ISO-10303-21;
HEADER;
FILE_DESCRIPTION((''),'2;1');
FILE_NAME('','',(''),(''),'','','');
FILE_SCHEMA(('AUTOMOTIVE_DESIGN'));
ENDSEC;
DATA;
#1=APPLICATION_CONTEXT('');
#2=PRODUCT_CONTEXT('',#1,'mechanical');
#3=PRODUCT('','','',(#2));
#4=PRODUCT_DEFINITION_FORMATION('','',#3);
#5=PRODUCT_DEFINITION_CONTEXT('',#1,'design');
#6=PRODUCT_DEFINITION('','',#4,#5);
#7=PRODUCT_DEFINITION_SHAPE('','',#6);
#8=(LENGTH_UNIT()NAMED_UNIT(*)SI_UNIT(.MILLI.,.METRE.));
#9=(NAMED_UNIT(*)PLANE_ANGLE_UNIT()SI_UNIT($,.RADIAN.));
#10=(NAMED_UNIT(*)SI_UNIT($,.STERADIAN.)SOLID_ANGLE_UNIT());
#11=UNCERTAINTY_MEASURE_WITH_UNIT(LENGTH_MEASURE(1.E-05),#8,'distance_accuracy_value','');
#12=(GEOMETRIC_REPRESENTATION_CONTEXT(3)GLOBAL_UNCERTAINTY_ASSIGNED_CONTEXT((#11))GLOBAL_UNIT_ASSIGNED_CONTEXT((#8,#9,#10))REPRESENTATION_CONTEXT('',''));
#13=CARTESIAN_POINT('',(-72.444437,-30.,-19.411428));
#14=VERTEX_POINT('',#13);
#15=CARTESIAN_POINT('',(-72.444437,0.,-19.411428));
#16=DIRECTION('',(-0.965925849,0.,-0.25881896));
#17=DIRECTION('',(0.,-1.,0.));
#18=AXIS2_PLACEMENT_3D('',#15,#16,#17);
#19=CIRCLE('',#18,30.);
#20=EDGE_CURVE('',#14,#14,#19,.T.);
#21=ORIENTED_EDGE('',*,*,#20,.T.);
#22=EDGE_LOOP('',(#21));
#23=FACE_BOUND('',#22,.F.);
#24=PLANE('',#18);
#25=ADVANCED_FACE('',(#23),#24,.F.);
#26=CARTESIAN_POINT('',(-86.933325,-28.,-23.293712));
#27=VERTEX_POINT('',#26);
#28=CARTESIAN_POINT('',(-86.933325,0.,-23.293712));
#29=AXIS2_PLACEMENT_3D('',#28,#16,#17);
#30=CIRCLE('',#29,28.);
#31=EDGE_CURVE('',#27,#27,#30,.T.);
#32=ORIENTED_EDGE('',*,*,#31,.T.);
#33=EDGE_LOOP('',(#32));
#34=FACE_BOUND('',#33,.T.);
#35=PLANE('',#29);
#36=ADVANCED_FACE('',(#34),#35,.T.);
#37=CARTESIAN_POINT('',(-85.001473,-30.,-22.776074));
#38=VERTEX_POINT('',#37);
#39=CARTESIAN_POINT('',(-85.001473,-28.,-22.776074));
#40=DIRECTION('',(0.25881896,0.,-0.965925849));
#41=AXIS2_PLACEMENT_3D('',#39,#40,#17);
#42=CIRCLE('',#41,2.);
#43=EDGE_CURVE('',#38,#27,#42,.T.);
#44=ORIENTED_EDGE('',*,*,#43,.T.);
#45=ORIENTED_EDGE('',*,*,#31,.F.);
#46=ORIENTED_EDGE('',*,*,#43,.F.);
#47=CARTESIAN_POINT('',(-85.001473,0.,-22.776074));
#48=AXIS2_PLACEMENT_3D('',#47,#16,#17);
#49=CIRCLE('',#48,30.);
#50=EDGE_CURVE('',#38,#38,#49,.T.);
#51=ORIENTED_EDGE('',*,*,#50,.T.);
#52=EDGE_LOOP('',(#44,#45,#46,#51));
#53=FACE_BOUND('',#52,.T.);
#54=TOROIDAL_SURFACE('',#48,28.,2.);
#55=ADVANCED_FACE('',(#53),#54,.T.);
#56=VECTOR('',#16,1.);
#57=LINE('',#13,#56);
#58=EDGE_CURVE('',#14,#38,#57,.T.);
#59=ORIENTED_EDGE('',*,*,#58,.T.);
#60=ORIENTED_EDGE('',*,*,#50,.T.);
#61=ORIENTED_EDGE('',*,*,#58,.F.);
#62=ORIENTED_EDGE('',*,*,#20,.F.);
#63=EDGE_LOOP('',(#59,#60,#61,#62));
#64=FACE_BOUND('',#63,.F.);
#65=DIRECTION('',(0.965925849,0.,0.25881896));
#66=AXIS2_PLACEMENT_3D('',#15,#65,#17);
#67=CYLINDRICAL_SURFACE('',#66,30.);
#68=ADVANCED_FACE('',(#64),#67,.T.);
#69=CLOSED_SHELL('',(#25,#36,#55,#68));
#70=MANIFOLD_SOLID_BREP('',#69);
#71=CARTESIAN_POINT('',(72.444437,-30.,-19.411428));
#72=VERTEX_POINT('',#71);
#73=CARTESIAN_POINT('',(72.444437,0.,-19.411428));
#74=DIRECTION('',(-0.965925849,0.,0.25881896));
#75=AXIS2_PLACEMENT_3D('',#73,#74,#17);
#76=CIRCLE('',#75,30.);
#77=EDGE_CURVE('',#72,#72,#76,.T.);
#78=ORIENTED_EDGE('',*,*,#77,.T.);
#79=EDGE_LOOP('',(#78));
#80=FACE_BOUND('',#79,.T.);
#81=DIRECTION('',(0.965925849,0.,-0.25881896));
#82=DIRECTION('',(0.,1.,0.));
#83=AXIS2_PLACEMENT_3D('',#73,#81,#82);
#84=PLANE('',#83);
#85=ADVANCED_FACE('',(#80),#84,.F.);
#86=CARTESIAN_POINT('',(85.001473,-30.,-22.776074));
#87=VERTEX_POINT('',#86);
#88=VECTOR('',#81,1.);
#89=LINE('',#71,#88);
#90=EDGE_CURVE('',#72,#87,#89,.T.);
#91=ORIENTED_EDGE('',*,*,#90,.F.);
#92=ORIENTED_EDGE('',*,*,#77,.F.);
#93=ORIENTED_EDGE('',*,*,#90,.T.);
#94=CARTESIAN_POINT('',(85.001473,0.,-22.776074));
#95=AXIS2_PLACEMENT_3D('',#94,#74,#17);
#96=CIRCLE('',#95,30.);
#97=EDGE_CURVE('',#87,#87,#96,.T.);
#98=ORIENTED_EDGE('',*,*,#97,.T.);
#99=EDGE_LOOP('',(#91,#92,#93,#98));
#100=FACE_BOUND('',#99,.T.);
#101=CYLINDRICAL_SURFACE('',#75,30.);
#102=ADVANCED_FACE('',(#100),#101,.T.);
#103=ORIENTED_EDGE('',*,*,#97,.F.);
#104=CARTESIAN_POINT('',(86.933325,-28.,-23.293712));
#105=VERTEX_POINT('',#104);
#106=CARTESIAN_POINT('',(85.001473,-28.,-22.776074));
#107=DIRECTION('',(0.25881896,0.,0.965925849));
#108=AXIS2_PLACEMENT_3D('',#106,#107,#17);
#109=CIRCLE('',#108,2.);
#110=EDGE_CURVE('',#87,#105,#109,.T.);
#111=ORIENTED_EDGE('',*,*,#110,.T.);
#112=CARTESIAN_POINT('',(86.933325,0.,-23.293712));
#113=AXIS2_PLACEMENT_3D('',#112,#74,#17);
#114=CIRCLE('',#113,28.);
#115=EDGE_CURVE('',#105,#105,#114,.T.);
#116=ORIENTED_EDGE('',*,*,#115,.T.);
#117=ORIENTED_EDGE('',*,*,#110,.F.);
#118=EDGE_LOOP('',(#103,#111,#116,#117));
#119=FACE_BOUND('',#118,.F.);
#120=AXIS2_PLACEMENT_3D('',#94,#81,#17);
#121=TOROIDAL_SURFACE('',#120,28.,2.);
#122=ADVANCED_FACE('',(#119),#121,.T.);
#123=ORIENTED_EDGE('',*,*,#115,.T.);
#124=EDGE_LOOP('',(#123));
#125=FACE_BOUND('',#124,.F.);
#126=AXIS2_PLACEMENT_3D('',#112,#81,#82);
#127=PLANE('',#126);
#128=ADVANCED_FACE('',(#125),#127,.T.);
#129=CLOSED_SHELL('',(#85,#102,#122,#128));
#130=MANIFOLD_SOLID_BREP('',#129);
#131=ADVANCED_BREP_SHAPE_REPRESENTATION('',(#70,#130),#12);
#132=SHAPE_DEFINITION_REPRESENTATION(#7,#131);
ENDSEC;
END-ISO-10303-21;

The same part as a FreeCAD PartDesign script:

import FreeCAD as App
import Part
import Sketcher

V = App.Vector


def edges_at(feature, points):
    """Names of the edges that pass closest to the given points."""
    edges = feature.Shape.Edges
    near = lambda p: min(range(len(edges)), key=lambda i: edges[i].distToShape(Part.Vertex(*p))[0])
    return sorted({f"Edge{near(p) + 1}" for p in points})

doc = App.newDocument("Part")
body = doc.addObject("PartDesign::Body", "Body")

# Sketch on an angled plane
sketch1 = doc.addObject("Sketcher::SketchObject", "Sketch")
body.addObject(sketch1)
sketch1.Placement = App.Placement(V(-72.444437, 0, -19.411428), App.Rotation(V(0, -1, 0), V(-0.25881896, 0, 0.965925849), V(-0.965925849, 0, -0.25881896), "ZXY"))
sketch1.addGeometry(Part.Circle(V(0, 0, 0), V(0, 0, 1), 30), False)
sketch1.addConstraint([
    Sketcher.Constraint("Coincident", 0, 3, -1, 1),
    Sketcher.Constraint("Diameter", 0, 60.0),
])
pad1 = doc.addObject("PartDesign::Pad", "Pad")
body.addObject(pad1)
pad1.Profile = sketch1
pad1.Length = 15
doc.recompute()

fillet = doc.addObject("PartDesign::Fillet", "Fillet")
body.addObject(fillet)
fillet.Base = (pad1, edges_at(pad1, [(-86.933, 30, -23.294)]))
fillet.Radius = 2
body2 = doc.addObject("PartDesign::Body", "Body001")
doc.recompute()

mirroring = doc.addObject("Part::Mirroring", "Mirroring")
mirroring.Source = body
mirroring.Base = V(0, 0, 0)
mirroring.Normal = V(1, 0, 0)
body2.BaseFeature = mirroring
doc.recompute()
mirroring.Visibility = False

doc.recompute()
